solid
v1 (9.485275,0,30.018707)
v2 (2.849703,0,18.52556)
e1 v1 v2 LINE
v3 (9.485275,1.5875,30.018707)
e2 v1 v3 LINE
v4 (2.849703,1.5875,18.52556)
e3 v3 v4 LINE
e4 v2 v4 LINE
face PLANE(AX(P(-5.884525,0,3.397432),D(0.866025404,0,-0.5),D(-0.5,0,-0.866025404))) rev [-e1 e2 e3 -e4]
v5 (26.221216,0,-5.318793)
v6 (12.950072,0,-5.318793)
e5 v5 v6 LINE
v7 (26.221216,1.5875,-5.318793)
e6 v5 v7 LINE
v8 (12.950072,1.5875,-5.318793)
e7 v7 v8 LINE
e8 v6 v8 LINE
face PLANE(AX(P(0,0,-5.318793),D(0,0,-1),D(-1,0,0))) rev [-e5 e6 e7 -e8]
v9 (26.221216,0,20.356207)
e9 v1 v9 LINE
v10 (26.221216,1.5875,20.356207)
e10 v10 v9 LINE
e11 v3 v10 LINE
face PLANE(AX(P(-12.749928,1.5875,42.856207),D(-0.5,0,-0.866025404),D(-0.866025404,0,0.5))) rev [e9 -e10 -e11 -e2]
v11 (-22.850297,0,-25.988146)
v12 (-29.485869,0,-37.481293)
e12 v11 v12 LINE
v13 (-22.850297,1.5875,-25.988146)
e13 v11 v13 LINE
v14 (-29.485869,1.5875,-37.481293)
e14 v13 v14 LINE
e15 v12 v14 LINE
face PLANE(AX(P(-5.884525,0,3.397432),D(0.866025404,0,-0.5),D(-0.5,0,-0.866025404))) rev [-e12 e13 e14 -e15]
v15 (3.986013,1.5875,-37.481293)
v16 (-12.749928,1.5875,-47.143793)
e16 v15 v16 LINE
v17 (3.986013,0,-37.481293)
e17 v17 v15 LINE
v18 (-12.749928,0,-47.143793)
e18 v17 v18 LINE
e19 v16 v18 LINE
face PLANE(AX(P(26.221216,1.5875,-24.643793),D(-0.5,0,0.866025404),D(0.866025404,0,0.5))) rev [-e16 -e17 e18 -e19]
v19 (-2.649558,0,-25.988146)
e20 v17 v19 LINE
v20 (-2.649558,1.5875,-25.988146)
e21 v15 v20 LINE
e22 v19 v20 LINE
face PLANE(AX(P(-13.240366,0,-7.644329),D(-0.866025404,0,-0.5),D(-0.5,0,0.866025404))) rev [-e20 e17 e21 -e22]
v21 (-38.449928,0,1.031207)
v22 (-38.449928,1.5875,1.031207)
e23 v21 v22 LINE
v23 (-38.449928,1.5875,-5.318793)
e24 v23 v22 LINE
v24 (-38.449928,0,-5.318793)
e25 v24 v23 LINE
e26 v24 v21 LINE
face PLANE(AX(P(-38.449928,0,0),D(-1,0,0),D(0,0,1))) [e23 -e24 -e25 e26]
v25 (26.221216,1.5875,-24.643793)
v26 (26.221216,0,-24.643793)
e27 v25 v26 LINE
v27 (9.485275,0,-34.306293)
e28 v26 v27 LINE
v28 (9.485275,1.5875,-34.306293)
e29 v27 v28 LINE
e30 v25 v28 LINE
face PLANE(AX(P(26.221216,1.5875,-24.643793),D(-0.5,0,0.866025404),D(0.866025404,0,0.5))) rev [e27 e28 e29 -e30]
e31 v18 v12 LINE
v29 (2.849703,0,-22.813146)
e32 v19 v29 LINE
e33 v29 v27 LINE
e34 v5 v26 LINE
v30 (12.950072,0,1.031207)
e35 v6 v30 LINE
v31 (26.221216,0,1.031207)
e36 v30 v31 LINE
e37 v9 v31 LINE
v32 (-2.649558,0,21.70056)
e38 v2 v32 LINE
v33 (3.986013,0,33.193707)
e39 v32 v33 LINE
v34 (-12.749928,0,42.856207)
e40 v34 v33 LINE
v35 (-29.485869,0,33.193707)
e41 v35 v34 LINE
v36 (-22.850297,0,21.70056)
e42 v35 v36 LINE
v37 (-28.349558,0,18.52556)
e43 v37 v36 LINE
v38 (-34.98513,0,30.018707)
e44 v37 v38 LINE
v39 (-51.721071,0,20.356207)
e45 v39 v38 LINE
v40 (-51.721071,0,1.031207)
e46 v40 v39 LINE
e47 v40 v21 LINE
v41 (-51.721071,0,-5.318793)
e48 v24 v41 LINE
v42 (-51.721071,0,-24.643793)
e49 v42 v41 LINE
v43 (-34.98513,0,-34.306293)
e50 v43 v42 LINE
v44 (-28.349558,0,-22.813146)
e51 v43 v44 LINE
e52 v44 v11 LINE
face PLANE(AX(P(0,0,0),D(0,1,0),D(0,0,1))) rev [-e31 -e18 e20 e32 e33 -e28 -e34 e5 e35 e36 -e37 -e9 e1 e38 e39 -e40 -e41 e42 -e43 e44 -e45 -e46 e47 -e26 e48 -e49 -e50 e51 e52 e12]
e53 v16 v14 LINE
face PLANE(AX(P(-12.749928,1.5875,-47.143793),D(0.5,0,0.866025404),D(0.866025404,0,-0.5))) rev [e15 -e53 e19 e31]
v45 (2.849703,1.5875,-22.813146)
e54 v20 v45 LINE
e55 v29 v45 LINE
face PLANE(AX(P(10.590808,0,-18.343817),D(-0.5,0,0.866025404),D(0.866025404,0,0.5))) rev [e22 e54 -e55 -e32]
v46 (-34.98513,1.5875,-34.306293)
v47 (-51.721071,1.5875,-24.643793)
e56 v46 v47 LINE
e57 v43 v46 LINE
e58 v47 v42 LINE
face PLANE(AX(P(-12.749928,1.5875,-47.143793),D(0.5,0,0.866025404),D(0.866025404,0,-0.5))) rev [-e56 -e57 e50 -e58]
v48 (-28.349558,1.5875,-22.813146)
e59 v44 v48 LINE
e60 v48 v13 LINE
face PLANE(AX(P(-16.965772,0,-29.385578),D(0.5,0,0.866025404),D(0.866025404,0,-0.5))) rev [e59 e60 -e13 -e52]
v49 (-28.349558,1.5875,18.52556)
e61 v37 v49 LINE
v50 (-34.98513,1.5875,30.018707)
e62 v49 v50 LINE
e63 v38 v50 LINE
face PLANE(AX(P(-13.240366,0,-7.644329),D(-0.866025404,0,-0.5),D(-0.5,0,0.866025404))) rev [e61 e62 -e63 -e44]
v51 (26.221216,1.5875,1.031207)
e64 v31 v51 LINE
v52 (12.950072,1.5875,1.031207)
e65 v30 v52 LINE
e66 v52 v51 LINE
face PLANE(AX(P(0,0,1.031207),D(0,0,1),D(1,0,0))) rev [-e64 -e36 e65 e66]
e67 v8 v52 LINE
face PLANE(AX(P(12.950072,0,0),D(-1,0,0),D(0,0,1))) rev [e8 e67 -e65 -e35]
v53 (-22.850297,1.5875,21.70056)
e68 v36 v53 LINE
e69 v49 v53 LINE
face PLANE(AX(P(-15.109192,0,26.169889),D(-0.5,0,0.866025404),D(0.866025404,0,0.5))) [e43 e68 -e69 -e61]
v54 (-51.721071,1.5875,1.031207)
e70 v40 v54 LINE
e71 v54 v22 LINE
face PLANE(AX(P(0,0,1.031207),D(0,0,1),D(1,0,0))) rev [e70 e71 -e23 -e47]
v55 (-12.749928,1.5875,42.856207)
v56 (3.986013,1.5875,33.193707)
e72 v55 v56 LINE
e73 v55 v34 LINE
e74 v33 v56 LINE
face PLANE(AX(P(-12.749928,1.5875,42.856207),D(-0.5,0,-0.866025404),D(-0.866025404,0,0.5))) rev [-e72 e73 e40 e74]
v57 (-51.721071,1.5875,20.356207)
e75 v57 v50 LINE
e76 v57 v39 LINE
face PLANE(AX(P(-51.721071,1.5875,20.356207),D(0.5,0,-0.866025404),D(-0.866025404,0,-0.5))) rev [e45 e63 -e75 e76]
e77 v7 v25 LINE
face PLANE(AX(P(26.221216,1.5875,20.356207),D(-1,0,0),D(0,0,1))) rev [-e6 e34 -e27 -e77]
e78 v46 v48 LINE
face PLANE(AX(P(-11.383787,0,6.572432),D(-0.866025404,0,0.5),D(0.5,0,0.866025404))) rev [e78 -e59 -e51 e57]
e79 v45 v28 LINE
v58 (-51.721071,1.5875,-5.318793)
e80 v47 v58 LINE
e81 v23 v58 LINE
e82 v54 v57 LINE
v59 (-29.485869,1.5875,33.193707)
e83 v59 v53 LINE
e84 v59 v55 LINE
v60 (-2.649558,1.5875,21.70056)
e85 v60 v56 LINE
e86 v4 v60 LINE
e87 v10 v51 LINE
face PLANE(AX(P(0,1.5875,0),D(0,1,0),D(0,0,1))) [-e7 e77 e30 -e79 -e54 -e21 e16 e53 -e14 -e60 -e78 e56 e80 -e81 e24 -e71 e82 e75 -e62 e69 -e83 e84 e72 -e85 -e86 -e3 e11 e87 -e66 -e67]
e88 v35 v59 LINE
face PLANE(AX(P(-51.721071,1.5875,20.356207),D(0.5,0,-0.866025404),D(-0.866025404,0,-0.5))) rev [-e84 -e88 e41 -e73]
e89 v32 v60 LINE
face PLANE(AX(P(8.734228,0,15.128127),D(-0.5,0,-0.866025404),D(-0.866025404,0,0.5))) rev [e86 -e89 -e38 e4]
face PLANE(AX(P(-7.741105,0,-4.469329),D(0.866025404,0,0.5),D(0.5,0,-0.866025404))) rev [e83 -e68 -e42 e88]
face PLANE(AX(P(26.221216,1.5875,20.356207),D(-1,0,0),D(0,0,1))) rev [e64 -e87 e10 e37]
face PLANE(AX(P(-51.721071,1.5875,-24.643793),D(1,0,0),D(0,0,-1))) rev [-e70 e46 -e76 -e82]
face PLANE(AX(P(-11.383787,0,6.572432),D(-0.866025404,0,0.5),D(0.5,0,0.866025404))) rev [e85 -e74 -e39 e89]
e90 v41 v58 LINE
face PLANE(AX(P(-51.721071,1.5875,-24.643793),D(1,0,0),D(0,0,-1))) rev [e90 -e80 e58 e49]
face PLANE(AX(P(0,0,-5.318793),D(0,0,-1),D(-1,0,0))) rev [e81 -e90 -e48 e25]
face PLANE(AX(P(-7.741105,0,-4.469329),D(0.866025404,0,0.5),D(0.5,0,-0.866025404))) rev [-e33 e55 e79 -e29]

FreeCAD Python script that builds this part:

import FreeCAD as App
import Part
import Sketcher
Q = App.Units.Quantity


def add_polygon(sketch, points):
    """Adds a closed chain of lines whose ends are joined by coincident constraints."""
    first, n = sketch.GeometryCount, len(points)
    for a, b in zip(points, points[1:] + points[:1]):
        sketch.addGeometry(Part.LineSegment(App.Vector(*a, 0), App.Vector(*b, 0)), False)
    for i in range(n):
        sketch.addConstraint(Sketcher.Constraint("Coincident", first + i, 2, first + (i + 1) % n, 1))

doc = App.newDocument("Part")
params = doc.addObject("Spreadsheet::Sheet", "Params")
for row, (alias, value) in enumerate([
    ("pad1_length", "0.0625 in"),
    ("sketch2_height", "0.25 in"),
    ("sketch2_length", "0.25 in"),
], start=1):
    params.set(f"A{row}", alias)
    params.set(f"B{row}", "=" + value)
    params.setAlias(f"B{row}", alias)

body = doc.addObject("PartDesign::Body", "Body")

# Sketch on XZ plane
sketch1 = doc.addObject("Sketcher::SketchObject", "Sketch")
body.addObject(sketch1)
sketch1.AttachmentSupport = (doc.XZ_Plane, [""])
sketch1.MapMode = "FlatFace"
add_polygon(sketch1, [(26, -25), (-13, -47), (-52, -25), (-52, 20), (-13, 43), (26, 20)])  # lines 0-5
sketch1.addConstraint([
    Sketcher.Constraint("Vertical", 2),
    Sketcher.Constraint("Vertical", 5),
    Sketcher.Constraint("Parallel", 0, 3),
    Sketcher.Constraint("Parallel", 1, 4),
    Sketcher.Constraint("Horizontal", 2, 2, 4, 2),
    Sketcher.Constraint("Horizontal", 1, 2, 5, 2),
    Sketcher.Constraint("Vertical", 0, 2, 3, 2),
    Sketcher.Constraint("Angle", 0, Q("-150 deg")),
    Sketcher.Constraint("DistanceY", 2, 1, 2, 2, 45.0),
    Sketcher.Constraint("Distance", 0, 45.0),
    Sketcher.Constraint("DistanceX", 1, 2, -1, 1, 51.721071),
    Sketcher.Constraint("DistanceY", 0, 2, -1, 1, 47.143793),
])
pad1 = doc.addObject("PartDesign::Pad", "Pad")
body.addObject(pad1)
pad1.Profile = sketch1
pad1.setExpression("Length", "Params.pad1_length")
pad1.Reversed = True

# Sketch on XZ plane
sketch2 = doc.addObject("Sketcher::SketchObject", "Sketch001")
body.addObject(sketch2)
sketch2.AttachmentSupport = (doc.XZ_Plane, [""])
sketch2.MapMode = "FlatFace"
sketch2.AttachmentOffset = App.Placement(App.Vector(0, 0, -0.0625 * 25.4), App.Rotation())
add_polygon(sketch2, [(13, -5), (13, 1), (26, 1), (26, -5)])  # lines 0-3
add_polygon(sketch2, [(3, -23), (9, -34), (4, -37), (-3, -26)])  # lines 4-7
add_polygon(sketch2, [(-23, -26), (-29, -37), (-35, -34), (-28, -23)])  # lines 8-11
add_polygon(sketch2, [(-52, -5), (-52, 1), (-38, 1), (-38, -5)])  # lines 12-15
add_polygon(sketch2, [(4, 33), (9, 30), (3, 19), (-3, 22)])  # lines 16-19
add_polygon(sketch2, [(-35, 30), (-29, 33), (-23, 22), (-28, 19)])  # lines 20-23
sketch2.addConstraint([
    Sketcher.Constraint("Vertical", 0),
    Sketcher.Constraint("Horizontal", 1),
    Sketcher.Constraint("Vertical", 2),
    Sketcher.Constraint("Horizontal", 3),
    Sketcher.Constraint("Vertical", 12),
    Sketcher.Constraint("Horizontal", 13),
    Sketcher.Constraint("Vertical", 14),
    Sketcher.Constraint("Horizontal", 15),
    Sketcher.Constraint("Perpendicular", 4, 5),
    Sketcher.Constraint("Perpendicular", 5, 6),
    Sketcher.Constraint("Perpendicular", 6, 7),
    Sketcher.Constraint("Perpendicular", 8, 9),
    Sketcher.Constraint("Perpendicular", 9, 10),
    Sketcher.Constraint("Perpendicular", 10, 11),
    Sketcher.Constraint("Parallel", 11, 16),
    Sketcher.Constraint("Perpendicular", 16, 17),
    Sketcher.Constraint("Perpendicular", 17, 18),
    Sketcher.Constraint("Perpendicular", 18, 19),
    Sketcher.Constraint("Parallel", 7, 20),
    Sketcher.Constraint("Perpendicular", 20, 21),
    Sketcher.Constraint("Perpendicular", 21, 22),
    Sketcher.Constraint("Perpendicular", 22, 23),
    Sketcher.Constraint("Horizontal", 5, 2, 8, 2),
    Sketcher.Constraint("Horizontal", 4, 2, 9, 2),
    Sketcher.Constraint("Horizontal", 7, 2, 10, 2),
    Sketcher.Constraint("Horizontal", 1, 2, 12, 2),
    Sketcher.Constraint("Horizontal", 3, 2, 14, 2),
    Sketcher.Constraint("Horizontal", 19, 2, 20, 2),
    Sketcher.Constraint("Horizontal", 18, 2, 21, 2),
    Sketcher.Constraint("Horizontal", 17, 2, 22, 2),
    Sketcher.Constraint("Vertical", 4, 2, 16, 2),
    Sketcher.Constraint("Vertical", 7, 2, 17, 2),
    Sketcher.Constraint("Vertical", 6, 2, 18, 2),
    Sketcher.Constraint("Vertical", 8, 2, 20, 2),
    Sketcher.Constraint("Vertical", 11, 2, 21, 2),
    Sketcher.Constraint("Equal", 3, 13),
    Sketcher.Constraint("Angle", 4, Q("-60 deg")),
    Sketcher.Constraint("DistanceY", 0, 1, 0, 2, Q("0.25 in")),
    Sketcher.Constraint("Distance", 5, Q("0.25 in")),
    Sketcher.Constraint("DistanceY", 4, 2, 3, 2, 28.9875),
    Sketcher.Constraint("DistanceX", 10, 2, 6, 2, 25.7),
    Sketcher.Constraint("DistanceY", 0, 2, 16, 2, 28.9875),
    Sketcher.Constraint("DistanceX", 1, 1, 1, 2, 13.271143),
    Sketcher.Constraint("DistanceX", 6, 2, -1, 1, 2.649558),
    Sketcher.Constraint("DistanceX", 8, 2, -1, 1, 29.485869),
    Sketcher.Constraint("DistanceX", 12, 2, -1, 1, 51.721071),
    Sketcher.Constraint("DistanceY", -1, 1, 17, 2, 18.52556),
    Sketcher.Constraint("DistanceX", 4, 2, 2, 2, 16.735941),
])
sketch2.setExpression("Constraints[61]", "Params.sketch2_height")
sketch2.setExpression("Constraints[62]", "Params.sketch2_length")
pocket1 = doc.addObject("PartDesign::Pocket", "Pocket")
body.addObject(pocket1)
pocket1.Profile = sketch2
pocket1.Type = "ThroughAll"
pocket1.Reversed = True

doc.recompute()
